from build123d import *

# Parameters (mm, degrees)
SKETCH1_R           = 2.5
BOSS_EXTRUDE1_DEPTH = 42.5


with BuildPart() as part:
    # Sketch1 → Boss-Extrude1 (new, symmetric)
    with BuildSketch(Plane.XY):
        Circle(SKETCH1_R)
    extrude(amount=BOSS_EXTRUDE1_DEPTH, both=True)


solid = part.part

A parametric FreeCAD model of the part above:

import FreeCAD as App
import Part
import Sketcher
from FreeCAD import Vector
Q = App.Units.Quantity

doc = App.newDocument("Part")
params = doc.addObject("Spreadsheet::Sheet", "Params")
for row, (alias, value) in enumerate([
    ("sketch1_diameter", "5 mm"),
    ("pad1_length", "85 mm"),
], start=1):
    params.set(f"A{row}", alias)
    params.set(f"B{row}", "=" + value)
    params.setAlias(f"B{row}", alias)

body = doc.addObject("PartDesign::Body", "Body")

sketch1 = body.newObject("Sketcher::SketchObject", "Sketch")
sketch1.AttachmentSupport = (doc.getObject("XY_Plane"), [""])
sketch1.MapMode = "FlatFace"
sketch1.addGeometry(Part.Circle(Vector(0, 0, 0), Vector(0, 0, 1), 2.5), False)
sketch1.addConstraint([
    Sketcher.Constraint("Coincident", 0, 3, -1, 1),
    Sketcher.Constraint("Diameter", 0, Q("5 mm")),
])
sketch1.setExpression("Constraints[1]", "Params.sketch1_diameter")
pad1 = body.newObject("PartDesign::Pad", "Pad")
pad1.Profile = sketch1
pad1.setExpression("Length", "Params.pad1_length")
pad1.Midplane = True

doc.recompute()
